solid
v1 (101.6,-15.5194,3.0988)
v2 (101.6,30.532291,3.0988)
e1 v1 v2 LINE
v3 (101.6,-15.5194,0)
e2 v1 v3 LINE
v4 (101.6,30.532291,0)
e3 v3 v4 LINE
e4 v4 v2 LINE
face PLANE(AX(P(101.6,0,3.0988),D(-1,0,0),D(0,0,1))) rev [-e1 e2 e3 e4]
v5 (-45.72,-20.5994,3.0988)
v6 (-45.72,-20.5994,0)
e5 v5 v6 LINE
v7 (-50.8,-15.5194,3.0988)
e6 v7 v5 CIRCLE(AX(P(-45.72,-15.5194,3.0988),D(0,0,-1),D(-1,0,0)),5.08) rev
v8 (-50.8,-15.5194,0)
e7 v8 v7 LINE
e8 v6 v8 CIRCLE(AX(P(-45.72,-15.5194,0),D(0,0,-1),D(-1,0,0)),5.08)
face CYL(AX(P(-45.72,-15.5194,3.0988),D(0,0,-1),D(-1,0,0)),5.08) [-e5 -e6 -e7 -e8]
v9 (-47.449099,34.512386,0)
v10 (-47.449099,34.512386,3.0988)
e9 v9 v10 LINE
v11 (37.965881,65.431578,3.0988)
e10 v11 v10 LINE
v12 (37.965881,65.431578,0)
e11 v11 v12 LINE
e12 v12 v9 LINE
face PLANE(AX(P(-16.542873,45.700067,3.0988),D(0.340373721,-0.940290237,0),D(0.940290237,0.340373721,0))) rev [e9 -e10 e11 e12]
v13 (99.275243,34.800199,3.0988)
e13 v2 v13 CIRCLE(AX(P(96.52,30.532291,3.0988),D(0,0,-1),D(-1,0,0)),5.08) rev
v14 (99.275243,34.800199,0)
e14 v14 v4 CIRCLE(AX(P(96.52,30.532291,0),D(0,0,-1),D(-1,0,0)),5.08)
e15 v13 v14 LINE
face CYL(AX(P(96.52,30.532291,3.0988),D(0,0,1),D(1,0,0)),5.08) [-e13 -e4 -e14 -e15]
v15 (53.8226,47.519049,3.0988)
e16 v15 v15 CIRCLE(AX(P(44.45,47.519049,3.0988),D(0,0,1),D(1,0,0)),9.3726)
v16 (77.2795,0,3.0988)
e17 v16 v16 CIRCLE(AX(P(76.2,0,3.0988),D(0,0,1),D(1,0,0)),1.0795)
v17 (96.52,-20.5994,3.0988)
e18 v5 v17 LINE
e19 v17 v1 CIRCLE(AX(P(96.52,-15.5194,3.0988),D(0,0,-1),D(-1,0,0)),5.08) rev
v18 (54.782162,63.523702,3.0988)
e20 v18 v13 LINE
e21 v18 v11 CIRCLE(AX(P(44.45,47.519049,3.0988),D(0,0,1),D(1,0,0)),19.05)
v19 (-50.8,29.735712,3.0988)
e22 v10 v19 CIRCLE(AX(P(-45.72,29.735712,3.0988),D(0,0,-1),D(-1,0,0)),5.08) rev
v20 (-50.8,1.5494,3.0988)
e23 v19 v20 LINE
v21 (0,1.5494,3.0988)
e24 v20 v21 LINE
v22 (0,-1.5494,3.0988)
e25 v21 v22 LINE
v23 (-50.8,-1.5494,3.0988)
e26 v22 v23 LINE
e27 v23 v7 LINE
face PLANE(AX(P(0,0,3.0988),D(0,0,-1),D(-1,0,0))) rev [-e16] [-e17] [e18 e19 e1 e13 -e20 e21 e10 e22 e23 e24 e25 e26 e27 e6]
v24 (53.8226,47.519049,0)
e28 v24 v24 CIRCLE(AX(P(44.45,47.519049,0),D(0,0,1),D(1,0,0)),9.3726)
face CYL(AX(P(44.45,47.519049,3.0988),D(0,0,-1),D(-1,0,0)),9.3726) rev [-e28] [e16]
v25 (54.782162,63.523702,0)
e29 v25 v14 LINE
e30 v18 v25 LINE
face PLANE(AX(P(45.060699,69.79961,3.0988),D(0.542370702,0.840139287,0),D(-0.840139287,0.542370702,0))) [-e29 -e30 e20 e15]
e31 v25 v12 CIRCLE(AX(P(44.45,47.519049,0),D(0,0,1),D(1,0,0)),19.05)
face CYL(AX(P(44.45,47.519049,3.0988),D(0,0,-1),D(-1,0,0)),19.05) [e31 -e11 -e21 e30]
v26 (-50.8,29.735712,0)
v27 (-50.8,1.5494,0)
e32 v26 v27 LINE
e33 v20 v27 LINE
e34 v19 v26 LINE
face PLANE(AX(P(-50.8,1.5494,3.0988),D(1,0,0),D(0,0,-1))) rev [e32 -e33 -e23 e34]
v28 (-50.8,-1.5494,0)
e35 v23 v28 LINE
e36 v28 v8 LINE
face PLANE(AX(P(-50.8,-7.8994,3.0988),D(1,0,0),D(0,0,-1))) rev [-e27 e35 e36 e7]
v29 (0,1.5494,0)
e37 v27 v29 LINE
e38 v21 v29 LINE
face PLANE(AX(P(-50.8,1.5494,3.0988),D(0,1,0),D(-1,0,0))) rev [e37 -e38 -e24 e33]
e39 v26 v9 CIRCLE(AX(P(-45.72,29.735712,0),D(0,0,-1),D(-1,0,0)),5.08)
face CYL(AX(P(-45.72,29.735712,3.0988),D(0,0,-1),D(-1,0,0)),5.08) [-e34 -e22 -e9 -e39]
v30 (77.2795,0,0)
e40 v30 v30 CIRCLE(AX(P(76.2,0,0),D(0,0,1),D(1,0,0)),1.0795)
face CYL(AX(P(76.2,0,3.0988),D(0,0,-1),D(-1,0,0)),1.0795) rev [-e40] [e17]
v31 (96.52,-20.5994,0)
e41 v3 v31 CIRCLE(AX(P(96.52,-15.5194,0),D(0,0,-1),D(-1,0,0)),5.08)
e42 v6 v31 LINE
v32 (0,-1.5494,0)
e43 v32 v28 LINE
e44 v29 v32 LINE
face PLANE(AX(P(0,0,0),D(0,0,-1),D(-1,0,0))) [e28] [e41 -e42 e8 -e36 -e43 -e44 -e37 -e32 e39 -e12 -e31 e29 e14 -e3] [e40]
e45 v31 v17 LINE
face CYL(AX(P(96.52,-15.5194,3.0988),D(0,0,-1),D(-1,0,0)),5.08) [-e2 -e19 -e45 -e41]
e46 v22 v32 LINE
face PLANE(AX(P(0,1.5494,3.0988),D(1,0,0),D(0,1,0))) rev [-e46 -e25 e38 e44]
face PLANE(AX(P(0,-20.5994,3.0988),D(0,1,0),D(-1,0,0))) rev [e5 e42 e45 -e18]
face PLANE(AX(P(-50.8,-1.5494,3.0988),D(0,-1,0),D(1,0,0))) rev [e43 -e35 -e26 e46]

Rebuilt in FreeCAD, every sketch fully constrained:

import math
import FreeCAD as App
import Part
import Sketcher

V = App.Vector
Q = App.Units.Quantity


def edges_at(feature, points):
    """Names of the edges that pass closest to the given points."""
    edges = feature.Shape.Edges
    near = lambda p: min(range(len(edges)), key=lambda i: edges[i].distToShape(Part.Vertex(*p))[0])
    return sorted({f"Edge{near(p) + 1}" for p in points})

doc = App.newDocument("Part")
body = doc.addObject("PartDesign::Body", "Body")

sketch1 = doc.addObject("Sketcher::SketchObject", "Sketch")
body.addObject(sketch1)
sketch1.AttachmentSupport = (doc.XY_Plane, [""])
sketch1.MapMode = "FlatFace"
sketch1.addGeometry([
    Part.LineSegment(V(-50.8, 7.9, 0), V(-50.8, 1.5, 0)),
    Part.LineSegment(V(-50.8, 1.5, 0), V(0, 1.5, 0)),
    Part.LineSegment(V(0, 1.5, 0), V(0, -1.5, 0)),
    Part.LineSegment(V(0, -1.5, 0), V(-50.8, -1.5, 0)),
    Part.LineSegment(V(-50.8, -1.5, 0), V(-50.8, -7.9, 0)),
    Part.LineSegment(V(-50.8, -7.9, 0), V(50.8, -7.9, 0)),
    Part.LineSegment(V(50.8, -7.9, 0), V(50.8, 7.9, 0)),
    Part.LineSegment(V(50.8, 7.9, 0), V(-50.8, 7.9, 0)),
], False)
sketch1.addConstraint([
    Sketcher.Constraint("Coincident", 0, 2, 1, 1),
    Sketcher.Constraint("Coincident", 1, 2, 2, 1),
    Sketcher.Constraint("Coincident", 2, 2, 3, 1),
    Sketcher.Constraint("Coincident", 3, 2, 4, 1),
    Sketcher.Constraint("Coincident", 4, 2, 5, 1),
    Sketcher.Constraint("Coincident", 5, 2, 6, 1),
    Sketcher.Constraint("Coincident", 6, 2, 7, 1),
    Sketcher.Constraint("Coincident", 7, 2, 0, 1),
    Sketcher.Constraint("Vertical", 0),
    Sketcher.Constraint("Horizontal", 1),
    Sketcher.Constraint("Vertical", 2),
    Sketcher.Constraint("Horizontal", 3),
    Sketcher.Constraint("Vertical", 4),
    Sketcher.Constraint("Horizontal", 5),
    Sketcher.Constraint("Vertical", 6),
    Sketcher.Constraint("Horizontal", 7),
    Sketcher.Constraint("Symmetric", 1, 2, 2, 2, -1, 1),
    Sketcher.Constraint("Symmetric", 4, 2, 6, 2, -1, 1),
    Sketcher.Constraint("Vertical", 0, 2, 3, 2),
    Sketcher.Constraint("DistanceX", 1, 1, 1, 2, Q("2 in")),
    Sketcher.Constraint("DistanceY", 0, 2, 0, 1, Q("0.25 in")),
    Sketcher.Constraint("DistanceY", 2, 2, 2, 1, Q("0.122 in")),
])
pad1 = doc.addObject("PartDesign::Pad", "Pad")
body.addObject(pad1)
pad1.Profile = sketch1
pad1.Length = Q("0.122 in")

sketch2 = doc.addObject("Sketcher::SketchObject", "Sketch001")
body.addObject(sketch2)
sketch2.AttachmentSupport = (doc.XY_Plane, [""])
sketch2.MapMode = "FlatFace"
sketch2.addGeometry([
    Part.LineSegment(V(50.8, -7.9, 0), V(-50.8, -7.9, 0)),
    Part.LineSegment(V(-50.8, -7.9, 0), V(-50.8, -20.6, 0)),
    Part.LineSegment(V(-50.8, -20.6, 0), V(101.6, -20.6, 0)),
    Part.LineSegment(V(101.6, -20.6, 0), V(101.6, 33.3, 0)),
    Part.LineSegment(V(101.6, 33.3, 0), V(54.8, 63.5, 0)),
    Part.ArcOfCircle(Part.Circle(V(44.4, 47.5, 0), V(0, 0, 1), 19.1), math.radians(57), math.radians(110)),
    Part.LineSegment(V(38, 65.4, 0), V(-50.8, 33.3, 0)),
    Part.LineSegment(V(-50.8, 33.3, 0), V(-50.8, 7.9, 0)),
    Part.LineSegment(V(-50.8, 7.9, 0), V(50.8, 7.9, 0)),
    Part.LineSegment(V(50.8, 7.9, 0), V(50.8, -7.9, 0)),
    Part.Circle(V(76.2, 0, 0), V(0, 0, 1), 1.1),
    Part.Circle(V(44.5, 47.5, 0), V(0, 0, 1), 9.4),
], False)
sketch2.addConstraint([
    Sketcher.Constraint("Coincident", 0, 2, 1, 1),
    Sketcher.Constraint("Coincident", 1, 2, 2, 1),
    Sketcher.Constraint("Coincident", 2, 2, 3, 1),
    Sketcher.Constraint("Coincident", 3, 2, 4, 1),
    Sketcher.Constraint("Tangent", 4, 2, 5, 1),
    Sketcher.Constraint("Tangent", 5, 2, 6, 1),
    Sketcher.Constraint("Coincident", 6, 2, 7, 1),
    Sketcher.Constraint("Coincident", 7, 2, 8, 1),
    Sketcher.Constraint("Coincident", 8, 2, 9, 1),
    Sketcher.Constraint("Coincident", 9, 2, 0, 1),
    Sketcher.Constraint("Horizontal", 0),
    Sketcher.Constraint("Vertical", 1),
    Sketcher.Constraint("Horizontal", 2),
    Sketcher.Constraint("Vertical", 3),
    Sketcher.Constraint("Vertical", 7),
    Sketcher.Constraint("Horizontal", 8),
    Sketcher.Constraint("Vertical", 9),
    Sketcher.Constraint("Coincident", 11, 3, 5, 3),
    Sketcher.Constraint("Symmetric", 0, 2, 8, 2, -1, 1),
    Sketcher.Constraint("PointOnObject", 10, 3, -1),
    Sketcher.Constraint("Horizontal", 3, 2, 6, 2),
    Sketcher.Constraint("Vertical", 1, 2, 6, 2),
    Sketcher.Constraint("DistanceX", 0, 2, 0, 1, Q("4 in")),
    Sketcher.Constraint("DistanceX", 2, 1, 2, 2, Q("6 in")),
    Sketcher.Constraint("DistanceY", 7, 2, 7, 1, Q("1 in")),
    Sketcher.Constraint("Radius", 5, Q("0.75 in")),
    Sketcher.Constraint("Diameter", 10, Q("0.085 in")),
    Sketcher.Constraint("Diameter", 11, Q("0.738 in")),
    Sketcher.Constraint("DistanceY", 1, 2, 1, 1, Q("0.5 in")),
    Sketcher.Constraint("DistanceX", -1, 1, 10, 3, Q("3 in")),
    Sketcher.Constraint("DistanceY", 3, 1, 3, 2, Q("2.122 in")),
    Sketcher.Constraint("DistanceX", -1, 1, 5, 3, Q("1.75 in")),
    Sketcher.Constraint("Distance", 4, 55.726281),
])
pad2 = doc.addObject("PartDesign::Pad", "Pad001")
body.addObject(pad2)
pad2.Profile = sketch2
pad2.Length = Q("0.122 in")
doc.recompute()

fillet = doc.addObject("PartDesign::Fillet", "Fillet")
body.addObject(fillet)
fillet.Base = (pad2, edges_at(pad2, [
    (101.6, 33.299, 1.549),
    (-50.8, 33.299, 1.549),
    (-50.8, -20.599, 1.549),
    (101.6, -20.599, 1.549),
]))
fillet.Radius = Q("0.2 in")

doc.recompute()
